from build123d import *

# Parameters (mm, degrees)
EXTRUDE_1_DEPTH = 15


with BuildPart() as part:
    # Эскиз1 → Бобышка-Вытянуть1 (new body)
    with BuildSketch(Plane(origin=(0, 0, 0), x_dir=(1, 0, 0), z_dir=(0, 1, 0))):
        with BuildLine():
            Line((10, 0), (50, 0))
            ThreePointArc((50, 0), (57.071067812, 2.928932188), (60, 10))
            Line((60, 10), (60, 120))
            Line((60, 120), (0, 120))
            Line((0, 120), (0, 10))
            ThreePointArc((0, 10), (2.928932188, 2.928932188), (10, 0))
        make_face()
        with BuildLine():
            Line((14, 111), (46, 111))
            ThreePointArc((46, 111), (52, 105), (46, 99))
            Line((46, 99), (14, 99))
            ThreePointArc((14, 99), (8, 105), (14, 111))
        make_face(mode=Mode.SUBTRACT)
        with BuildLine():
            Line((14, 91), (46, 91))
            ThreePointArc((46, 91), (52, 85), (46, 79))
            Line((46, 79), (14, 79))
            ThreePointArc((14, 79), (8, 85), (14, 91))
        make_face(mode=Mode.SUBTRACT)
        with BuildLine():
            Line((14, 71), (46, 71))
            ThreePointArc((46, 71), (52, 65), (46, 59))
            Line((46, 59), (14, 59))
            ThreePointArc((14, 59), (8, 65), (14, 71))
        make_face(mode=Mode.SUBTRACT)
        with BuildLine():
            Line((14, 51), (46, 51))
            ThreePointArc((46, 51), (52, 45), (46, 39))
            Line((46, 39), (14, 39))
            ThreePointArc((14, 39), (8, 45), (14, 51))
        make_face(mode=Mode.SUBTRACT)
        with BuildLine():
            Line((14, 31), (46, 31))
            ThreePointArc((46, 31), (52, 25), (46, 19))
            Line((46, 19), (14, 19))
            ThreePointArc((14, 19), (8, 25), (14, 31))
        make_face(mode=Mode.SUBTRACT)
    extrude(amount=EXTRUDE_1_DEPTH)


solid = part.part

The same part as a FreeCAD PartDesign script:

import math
import FreeCAD as App
import Part
import Sketcher

doc = App.newDocument("Part")
params = doc.addObject("Spreadsheet::Sheet", "Params")
for row, (alias, value) in enumerate([
    ("sketch1_radius", "10 mm"),
    ("sketch1_radius2", "6 mm"),
    ("sketch1_width", "40 mm"),
    ("sketch1_width2", "32 mm"),
    ("sketch1_height", "110 mm"),
    ("pad1_length", "15 mm"),
], start=1):
    params.set(f"A{row}", alias)
    params.set(f"B{row}", "=" + value)
    params.setAlias(f"B{row}", alias)

body = doc.addObject("PartDesign::Body", "Body")

sketch1 = body.newObject("Sketcher::SketchObject", "Sketch")
sketch1.AttachmentSupport = (doc.getObject("XZ_Plane"), [""])
sketch1.MapMode = "FlatFace"
sketch1.addGeometry([
    Part.LineSegment(App.Vector(10, 0, 0), App.Vector(50, 0, 0)),
    Part.ArcOfCircle(Part.Circle(App.Vector(50, -10, 0), App.Vector(0, 0, 1), 10), math.radians(0), math.radians(90)),
    Part.LineSegment(App.Vector(60, -10, 0), App.Vector(60, -120, 0)),
    Part.LineSegment(App.Vector(60, -120, 0), App.Vector(0, -120, 0)),
    Part.LineSegment(App.Vector(0, -120, 0), App.Vector(0, -10, 0)),
    Part.ArcOfCircle(Part.Circle(App.Vector(10, -10, 0), App.Vector(0, 0, 1), 10), math.radians(90), math.radians(180)),
    Part.ArcOfCircle(Part.Circle(App.Vector(14, -25, 0), App.Vector(0, 0, 1), 6), math.radians(90), math.radians(270)),
    Part.LineSegment(App.Vector(14, -31, 0), App.Vector(46, -31, 0)),
    Part.ArcOfCircle(Part.Circle(App.Vector(46, -25, 0), App.Vector(0, 0, 1), 6), math.radians(-90), math.radians(90)),
    Part.LineSegment(App.Vector(46, -19, 0), App.Vector(14, -19, 0)),
    Part.ArcOfCircle(Part.Circle(App.Vector(14, -45, 0), App.Vector(0, 0, 1), 6), math.radians(90), math.radians(270)),
    Part.LineSegment(App.Vector(14, -51, 0), App.Vector(46, -51, 0)),
    Part.ArcOfCircle(Part.Circle(App.Vector(46, -45, 0), App.Vector(0, 0, 1), 6), math.radians(-90), math.radians(90)),
    Part.LineSegment(App.Vector(46, -39, 0), App.Vector(14, -39, 0)),
    Part.ArcOfCircle(Part.Circle(App.Vector(14, -65, 0), App.Vector(0, 0, 1), 6), math.radians(90), math.radians(270)),
    Part.LineSegment(App.Vector(14, -71, 0), App.Vector(46, -71, 0)),
    Part.ArcOfCircle(Part.Circle(App.Vector(46, -65, 0), App.Vector(0, 0, 1), 6), math.radians(-90), math.radians(90)),
    Part.LineSegment(App.Vector(46, -59, 0), App.Vector(14, -59, 0)),
    Part.ArcOfCircle(Part.Circle(App.Vector(14, -85, 0), App.Vector(0, 0, 1), 6), math.radians(90), math.radians(270)),
    Part.LineSegment(App.Vector(14, -91, 0), App.Vector(46, -91, 0)),
    Part.ArcOfCircle(Part.Circle(App.Vector(46, -85, 0), App.Vector(0, 0, 1), 6), math.radians(-90), math.radians(90)),
    Part.LineSegment(App.Vector(46, -79, 0), App.Vector(14, -79, 0)),
    Part.ArcOfCircle(Part.Circle(App.Vector(14, -105, 0), App.Vector(0, 0, 1), 6), math.radians(90), math.radians(270)),
    Part.LineSegment(App.Vector(14, -111, 0), App.Vector(46, -111, 0)),
    Part.ArcOfCircle(Part.Circle(App.Vector(46, -105, 0), App.Vector(0, 0, 1), 6), math.radians(-90), math.radians(90)),
    Part.LineSegment(App.Vector(46, -99, 0), App.Vector(14, -99, 0)),
], False)
sketch1.addConstraint([
    Sketcher.Constraint("Tangent", 0, 2, 1, 2),
    Sketcher.Constraint("Tangent", 1, 1, 2, 1),
    Sketcher.Constraint("Coincident", 2, 2, 3, 1),
    Sketcher.Constraint("Coincident", 3, 2, 4, 1),
    Sketcher.Constraint("Tangent", 4, 2, 5, 2),
    Sketcher.Constraint("Tangent", 5, 1, 0, 1),
    Sketcher.Constraint("Tangent", 6, 2, 7, 1),
    Sketcher.Constraint("Tangent", 7, 2, 8, 1),
    Sketcher.Constraint("Tangent", 8, 2, 9, 1),
    Sketcher.Constraint("Tangent", 9, 2, 6, 1),
    Sketcher.Constraint("Tangent", 10, 2, 11, 1),
    Sketcher.Constraint("Tangent", 11, 2, 12, 1),
    Sketcher.Constraint("Tangent", 12, 2, 13, 1),
    Sketcher.Constraint("Tangent", 13, 2, 10, 1),
    Sketcher.Constraint("Tangent", 14, 2, 15, 1),
    Sketcher.Constraint("Tangent", 15, 2, 16, 1),
    Sketcher.Constraint("Tangent", 16, 2, 17, 1),
    Sketcher.Constraint("Tangent", 17, 2, 14, 1),
    Sketcher.Constraint("Tangent", 18, 2, 19, 1),
    Sketcher.Constraint("Tangent", 19, 2, 20, 1),
    Sketcher.Constraint("Tangent", 20, 2, 21, 1),
    Sketcher.Constraint("Tangent", 21, 2, 18, 1),
    Sketcher.Constraint("Tangent", 22, 2, 23, 1),
    Sketcher.Constraint("Tangent", 23, 2, 24, 1),
    Sketcher.Constraint("Tangent", 24, 2, 25, 1),
    Sketcher.Constraint("Tangent", 25, 2, 22, 1),
    Sketcher.Constraint("Horizontal", 0),
    Sketcher.Constraint("Vertical", 2),
    Sketcher.Constraint("Horizontal", 3),
    Sketcher.Constraint("Vertical", 4),
    Sketcher.Constraint("Horizontal", 7),
    Sketcher.Constraint("Horizontal", 9),
    Sketcher.Constraint("Horizontal", 11),
    Sketcher.Constraint("Horizontal", 13),
    Sketcher.Constraint("Horizontal", 15),
    Sketcher.Constraint("Horizontal", 17),
    Sketcher.Constraint("Horizontal", 19),
    Sketcher.Constraint("Horizontal", 21),
    Sketcher.Constraint("Horizontal", 23),
    Sketcher.Constraint("Horizontal", 25),
    Sketcher.Constraint("Equal", 1, 5),
    Sketcher.Constraint("Equal", 8, 10),
    Sketcher.Constraint("Equal", 12, 14),
    Sketcher.Constraint("Equal", 16, 18),
    Sketcher.Constraint("Equal", 20, 22),
    Sketcher.Constraint("PointOnObject", 0, 2, -1),
    Sketcher.Constraint("PointOnObject", 3, 2, -2),
    Sketcher.Constraint("Vertical", 6, 3, 10, 3),
    Sketcher.Constraint("Vertical", 8, 3, 12, 3),
    Sketcher.Constraint("Vertical", 10, 3, 14, 3),
    Sketcher.Constraint("Vertical", 12, 3, 16, 3),
    Sketcher.Constraint("Vertical", 14, 3, 18, 3),
    Sketcher.Constraint("Vertical", 16, 3, 20, 3),
    Sketcher.Constraint("Vertical", 18, 3, 22, 3),
    Sketcher.Constraint("Vertical", 20, 3, 24, 3),
    Sketcher.Constraint("Radius", 1, 10.0),
    Sketcher.Constraint("Radius", 6, 6.0),
    Sketcher.Constraint("DistanceX", 0, 1, 0, 2, 40.0),
    Sketcher.Constraint("DistanceX", 7, 1, 7, 2, 32.0),
    Sketcher.Constraint("DistanceY", 2, 2, 2, 1, 110.0),
    Sketcher.Constraint("DistanceX", -1, 1, 6, 3, 14.0),
    Sketcher.Constraint("DistanceY", 6, 3, -1, 1, 25.0),
    Sketcher.Constraint("DistanceY", 10, 3, -1, 1, 45.0),
    Sketcher.Constraint("DistanceY", 14, 3, -1, 1, 65.0),
    Sketcher.Constraint("DistanceY", 18, 3, -1, 1, 85.0),
    Sketcher.Constraint("DistanceY", 22, 3, -1, 1, 105.0),
])
sketch1.setExpression("Constraints[55]", "Params.sketch1_radius")
sketch1.setExpression("Constraints[56]", "Params.sketch1_radius2")
sketch1.setExpression("Constraints[57]", "Params.sketch1_width")
sketch1.setExpression("Constraints[58]", "Params.sketch1_width2")
sketch1.setExpression("Constraints[59]", "Params.sketch1_height")
pad1 = body.newObject("PartDesign::Pad", "Pad")
pad1.Profile = sketch1
pad1.setExpression("Length", "Params.pad1_length")
pad1.Reversed = True

doc.recompute()
